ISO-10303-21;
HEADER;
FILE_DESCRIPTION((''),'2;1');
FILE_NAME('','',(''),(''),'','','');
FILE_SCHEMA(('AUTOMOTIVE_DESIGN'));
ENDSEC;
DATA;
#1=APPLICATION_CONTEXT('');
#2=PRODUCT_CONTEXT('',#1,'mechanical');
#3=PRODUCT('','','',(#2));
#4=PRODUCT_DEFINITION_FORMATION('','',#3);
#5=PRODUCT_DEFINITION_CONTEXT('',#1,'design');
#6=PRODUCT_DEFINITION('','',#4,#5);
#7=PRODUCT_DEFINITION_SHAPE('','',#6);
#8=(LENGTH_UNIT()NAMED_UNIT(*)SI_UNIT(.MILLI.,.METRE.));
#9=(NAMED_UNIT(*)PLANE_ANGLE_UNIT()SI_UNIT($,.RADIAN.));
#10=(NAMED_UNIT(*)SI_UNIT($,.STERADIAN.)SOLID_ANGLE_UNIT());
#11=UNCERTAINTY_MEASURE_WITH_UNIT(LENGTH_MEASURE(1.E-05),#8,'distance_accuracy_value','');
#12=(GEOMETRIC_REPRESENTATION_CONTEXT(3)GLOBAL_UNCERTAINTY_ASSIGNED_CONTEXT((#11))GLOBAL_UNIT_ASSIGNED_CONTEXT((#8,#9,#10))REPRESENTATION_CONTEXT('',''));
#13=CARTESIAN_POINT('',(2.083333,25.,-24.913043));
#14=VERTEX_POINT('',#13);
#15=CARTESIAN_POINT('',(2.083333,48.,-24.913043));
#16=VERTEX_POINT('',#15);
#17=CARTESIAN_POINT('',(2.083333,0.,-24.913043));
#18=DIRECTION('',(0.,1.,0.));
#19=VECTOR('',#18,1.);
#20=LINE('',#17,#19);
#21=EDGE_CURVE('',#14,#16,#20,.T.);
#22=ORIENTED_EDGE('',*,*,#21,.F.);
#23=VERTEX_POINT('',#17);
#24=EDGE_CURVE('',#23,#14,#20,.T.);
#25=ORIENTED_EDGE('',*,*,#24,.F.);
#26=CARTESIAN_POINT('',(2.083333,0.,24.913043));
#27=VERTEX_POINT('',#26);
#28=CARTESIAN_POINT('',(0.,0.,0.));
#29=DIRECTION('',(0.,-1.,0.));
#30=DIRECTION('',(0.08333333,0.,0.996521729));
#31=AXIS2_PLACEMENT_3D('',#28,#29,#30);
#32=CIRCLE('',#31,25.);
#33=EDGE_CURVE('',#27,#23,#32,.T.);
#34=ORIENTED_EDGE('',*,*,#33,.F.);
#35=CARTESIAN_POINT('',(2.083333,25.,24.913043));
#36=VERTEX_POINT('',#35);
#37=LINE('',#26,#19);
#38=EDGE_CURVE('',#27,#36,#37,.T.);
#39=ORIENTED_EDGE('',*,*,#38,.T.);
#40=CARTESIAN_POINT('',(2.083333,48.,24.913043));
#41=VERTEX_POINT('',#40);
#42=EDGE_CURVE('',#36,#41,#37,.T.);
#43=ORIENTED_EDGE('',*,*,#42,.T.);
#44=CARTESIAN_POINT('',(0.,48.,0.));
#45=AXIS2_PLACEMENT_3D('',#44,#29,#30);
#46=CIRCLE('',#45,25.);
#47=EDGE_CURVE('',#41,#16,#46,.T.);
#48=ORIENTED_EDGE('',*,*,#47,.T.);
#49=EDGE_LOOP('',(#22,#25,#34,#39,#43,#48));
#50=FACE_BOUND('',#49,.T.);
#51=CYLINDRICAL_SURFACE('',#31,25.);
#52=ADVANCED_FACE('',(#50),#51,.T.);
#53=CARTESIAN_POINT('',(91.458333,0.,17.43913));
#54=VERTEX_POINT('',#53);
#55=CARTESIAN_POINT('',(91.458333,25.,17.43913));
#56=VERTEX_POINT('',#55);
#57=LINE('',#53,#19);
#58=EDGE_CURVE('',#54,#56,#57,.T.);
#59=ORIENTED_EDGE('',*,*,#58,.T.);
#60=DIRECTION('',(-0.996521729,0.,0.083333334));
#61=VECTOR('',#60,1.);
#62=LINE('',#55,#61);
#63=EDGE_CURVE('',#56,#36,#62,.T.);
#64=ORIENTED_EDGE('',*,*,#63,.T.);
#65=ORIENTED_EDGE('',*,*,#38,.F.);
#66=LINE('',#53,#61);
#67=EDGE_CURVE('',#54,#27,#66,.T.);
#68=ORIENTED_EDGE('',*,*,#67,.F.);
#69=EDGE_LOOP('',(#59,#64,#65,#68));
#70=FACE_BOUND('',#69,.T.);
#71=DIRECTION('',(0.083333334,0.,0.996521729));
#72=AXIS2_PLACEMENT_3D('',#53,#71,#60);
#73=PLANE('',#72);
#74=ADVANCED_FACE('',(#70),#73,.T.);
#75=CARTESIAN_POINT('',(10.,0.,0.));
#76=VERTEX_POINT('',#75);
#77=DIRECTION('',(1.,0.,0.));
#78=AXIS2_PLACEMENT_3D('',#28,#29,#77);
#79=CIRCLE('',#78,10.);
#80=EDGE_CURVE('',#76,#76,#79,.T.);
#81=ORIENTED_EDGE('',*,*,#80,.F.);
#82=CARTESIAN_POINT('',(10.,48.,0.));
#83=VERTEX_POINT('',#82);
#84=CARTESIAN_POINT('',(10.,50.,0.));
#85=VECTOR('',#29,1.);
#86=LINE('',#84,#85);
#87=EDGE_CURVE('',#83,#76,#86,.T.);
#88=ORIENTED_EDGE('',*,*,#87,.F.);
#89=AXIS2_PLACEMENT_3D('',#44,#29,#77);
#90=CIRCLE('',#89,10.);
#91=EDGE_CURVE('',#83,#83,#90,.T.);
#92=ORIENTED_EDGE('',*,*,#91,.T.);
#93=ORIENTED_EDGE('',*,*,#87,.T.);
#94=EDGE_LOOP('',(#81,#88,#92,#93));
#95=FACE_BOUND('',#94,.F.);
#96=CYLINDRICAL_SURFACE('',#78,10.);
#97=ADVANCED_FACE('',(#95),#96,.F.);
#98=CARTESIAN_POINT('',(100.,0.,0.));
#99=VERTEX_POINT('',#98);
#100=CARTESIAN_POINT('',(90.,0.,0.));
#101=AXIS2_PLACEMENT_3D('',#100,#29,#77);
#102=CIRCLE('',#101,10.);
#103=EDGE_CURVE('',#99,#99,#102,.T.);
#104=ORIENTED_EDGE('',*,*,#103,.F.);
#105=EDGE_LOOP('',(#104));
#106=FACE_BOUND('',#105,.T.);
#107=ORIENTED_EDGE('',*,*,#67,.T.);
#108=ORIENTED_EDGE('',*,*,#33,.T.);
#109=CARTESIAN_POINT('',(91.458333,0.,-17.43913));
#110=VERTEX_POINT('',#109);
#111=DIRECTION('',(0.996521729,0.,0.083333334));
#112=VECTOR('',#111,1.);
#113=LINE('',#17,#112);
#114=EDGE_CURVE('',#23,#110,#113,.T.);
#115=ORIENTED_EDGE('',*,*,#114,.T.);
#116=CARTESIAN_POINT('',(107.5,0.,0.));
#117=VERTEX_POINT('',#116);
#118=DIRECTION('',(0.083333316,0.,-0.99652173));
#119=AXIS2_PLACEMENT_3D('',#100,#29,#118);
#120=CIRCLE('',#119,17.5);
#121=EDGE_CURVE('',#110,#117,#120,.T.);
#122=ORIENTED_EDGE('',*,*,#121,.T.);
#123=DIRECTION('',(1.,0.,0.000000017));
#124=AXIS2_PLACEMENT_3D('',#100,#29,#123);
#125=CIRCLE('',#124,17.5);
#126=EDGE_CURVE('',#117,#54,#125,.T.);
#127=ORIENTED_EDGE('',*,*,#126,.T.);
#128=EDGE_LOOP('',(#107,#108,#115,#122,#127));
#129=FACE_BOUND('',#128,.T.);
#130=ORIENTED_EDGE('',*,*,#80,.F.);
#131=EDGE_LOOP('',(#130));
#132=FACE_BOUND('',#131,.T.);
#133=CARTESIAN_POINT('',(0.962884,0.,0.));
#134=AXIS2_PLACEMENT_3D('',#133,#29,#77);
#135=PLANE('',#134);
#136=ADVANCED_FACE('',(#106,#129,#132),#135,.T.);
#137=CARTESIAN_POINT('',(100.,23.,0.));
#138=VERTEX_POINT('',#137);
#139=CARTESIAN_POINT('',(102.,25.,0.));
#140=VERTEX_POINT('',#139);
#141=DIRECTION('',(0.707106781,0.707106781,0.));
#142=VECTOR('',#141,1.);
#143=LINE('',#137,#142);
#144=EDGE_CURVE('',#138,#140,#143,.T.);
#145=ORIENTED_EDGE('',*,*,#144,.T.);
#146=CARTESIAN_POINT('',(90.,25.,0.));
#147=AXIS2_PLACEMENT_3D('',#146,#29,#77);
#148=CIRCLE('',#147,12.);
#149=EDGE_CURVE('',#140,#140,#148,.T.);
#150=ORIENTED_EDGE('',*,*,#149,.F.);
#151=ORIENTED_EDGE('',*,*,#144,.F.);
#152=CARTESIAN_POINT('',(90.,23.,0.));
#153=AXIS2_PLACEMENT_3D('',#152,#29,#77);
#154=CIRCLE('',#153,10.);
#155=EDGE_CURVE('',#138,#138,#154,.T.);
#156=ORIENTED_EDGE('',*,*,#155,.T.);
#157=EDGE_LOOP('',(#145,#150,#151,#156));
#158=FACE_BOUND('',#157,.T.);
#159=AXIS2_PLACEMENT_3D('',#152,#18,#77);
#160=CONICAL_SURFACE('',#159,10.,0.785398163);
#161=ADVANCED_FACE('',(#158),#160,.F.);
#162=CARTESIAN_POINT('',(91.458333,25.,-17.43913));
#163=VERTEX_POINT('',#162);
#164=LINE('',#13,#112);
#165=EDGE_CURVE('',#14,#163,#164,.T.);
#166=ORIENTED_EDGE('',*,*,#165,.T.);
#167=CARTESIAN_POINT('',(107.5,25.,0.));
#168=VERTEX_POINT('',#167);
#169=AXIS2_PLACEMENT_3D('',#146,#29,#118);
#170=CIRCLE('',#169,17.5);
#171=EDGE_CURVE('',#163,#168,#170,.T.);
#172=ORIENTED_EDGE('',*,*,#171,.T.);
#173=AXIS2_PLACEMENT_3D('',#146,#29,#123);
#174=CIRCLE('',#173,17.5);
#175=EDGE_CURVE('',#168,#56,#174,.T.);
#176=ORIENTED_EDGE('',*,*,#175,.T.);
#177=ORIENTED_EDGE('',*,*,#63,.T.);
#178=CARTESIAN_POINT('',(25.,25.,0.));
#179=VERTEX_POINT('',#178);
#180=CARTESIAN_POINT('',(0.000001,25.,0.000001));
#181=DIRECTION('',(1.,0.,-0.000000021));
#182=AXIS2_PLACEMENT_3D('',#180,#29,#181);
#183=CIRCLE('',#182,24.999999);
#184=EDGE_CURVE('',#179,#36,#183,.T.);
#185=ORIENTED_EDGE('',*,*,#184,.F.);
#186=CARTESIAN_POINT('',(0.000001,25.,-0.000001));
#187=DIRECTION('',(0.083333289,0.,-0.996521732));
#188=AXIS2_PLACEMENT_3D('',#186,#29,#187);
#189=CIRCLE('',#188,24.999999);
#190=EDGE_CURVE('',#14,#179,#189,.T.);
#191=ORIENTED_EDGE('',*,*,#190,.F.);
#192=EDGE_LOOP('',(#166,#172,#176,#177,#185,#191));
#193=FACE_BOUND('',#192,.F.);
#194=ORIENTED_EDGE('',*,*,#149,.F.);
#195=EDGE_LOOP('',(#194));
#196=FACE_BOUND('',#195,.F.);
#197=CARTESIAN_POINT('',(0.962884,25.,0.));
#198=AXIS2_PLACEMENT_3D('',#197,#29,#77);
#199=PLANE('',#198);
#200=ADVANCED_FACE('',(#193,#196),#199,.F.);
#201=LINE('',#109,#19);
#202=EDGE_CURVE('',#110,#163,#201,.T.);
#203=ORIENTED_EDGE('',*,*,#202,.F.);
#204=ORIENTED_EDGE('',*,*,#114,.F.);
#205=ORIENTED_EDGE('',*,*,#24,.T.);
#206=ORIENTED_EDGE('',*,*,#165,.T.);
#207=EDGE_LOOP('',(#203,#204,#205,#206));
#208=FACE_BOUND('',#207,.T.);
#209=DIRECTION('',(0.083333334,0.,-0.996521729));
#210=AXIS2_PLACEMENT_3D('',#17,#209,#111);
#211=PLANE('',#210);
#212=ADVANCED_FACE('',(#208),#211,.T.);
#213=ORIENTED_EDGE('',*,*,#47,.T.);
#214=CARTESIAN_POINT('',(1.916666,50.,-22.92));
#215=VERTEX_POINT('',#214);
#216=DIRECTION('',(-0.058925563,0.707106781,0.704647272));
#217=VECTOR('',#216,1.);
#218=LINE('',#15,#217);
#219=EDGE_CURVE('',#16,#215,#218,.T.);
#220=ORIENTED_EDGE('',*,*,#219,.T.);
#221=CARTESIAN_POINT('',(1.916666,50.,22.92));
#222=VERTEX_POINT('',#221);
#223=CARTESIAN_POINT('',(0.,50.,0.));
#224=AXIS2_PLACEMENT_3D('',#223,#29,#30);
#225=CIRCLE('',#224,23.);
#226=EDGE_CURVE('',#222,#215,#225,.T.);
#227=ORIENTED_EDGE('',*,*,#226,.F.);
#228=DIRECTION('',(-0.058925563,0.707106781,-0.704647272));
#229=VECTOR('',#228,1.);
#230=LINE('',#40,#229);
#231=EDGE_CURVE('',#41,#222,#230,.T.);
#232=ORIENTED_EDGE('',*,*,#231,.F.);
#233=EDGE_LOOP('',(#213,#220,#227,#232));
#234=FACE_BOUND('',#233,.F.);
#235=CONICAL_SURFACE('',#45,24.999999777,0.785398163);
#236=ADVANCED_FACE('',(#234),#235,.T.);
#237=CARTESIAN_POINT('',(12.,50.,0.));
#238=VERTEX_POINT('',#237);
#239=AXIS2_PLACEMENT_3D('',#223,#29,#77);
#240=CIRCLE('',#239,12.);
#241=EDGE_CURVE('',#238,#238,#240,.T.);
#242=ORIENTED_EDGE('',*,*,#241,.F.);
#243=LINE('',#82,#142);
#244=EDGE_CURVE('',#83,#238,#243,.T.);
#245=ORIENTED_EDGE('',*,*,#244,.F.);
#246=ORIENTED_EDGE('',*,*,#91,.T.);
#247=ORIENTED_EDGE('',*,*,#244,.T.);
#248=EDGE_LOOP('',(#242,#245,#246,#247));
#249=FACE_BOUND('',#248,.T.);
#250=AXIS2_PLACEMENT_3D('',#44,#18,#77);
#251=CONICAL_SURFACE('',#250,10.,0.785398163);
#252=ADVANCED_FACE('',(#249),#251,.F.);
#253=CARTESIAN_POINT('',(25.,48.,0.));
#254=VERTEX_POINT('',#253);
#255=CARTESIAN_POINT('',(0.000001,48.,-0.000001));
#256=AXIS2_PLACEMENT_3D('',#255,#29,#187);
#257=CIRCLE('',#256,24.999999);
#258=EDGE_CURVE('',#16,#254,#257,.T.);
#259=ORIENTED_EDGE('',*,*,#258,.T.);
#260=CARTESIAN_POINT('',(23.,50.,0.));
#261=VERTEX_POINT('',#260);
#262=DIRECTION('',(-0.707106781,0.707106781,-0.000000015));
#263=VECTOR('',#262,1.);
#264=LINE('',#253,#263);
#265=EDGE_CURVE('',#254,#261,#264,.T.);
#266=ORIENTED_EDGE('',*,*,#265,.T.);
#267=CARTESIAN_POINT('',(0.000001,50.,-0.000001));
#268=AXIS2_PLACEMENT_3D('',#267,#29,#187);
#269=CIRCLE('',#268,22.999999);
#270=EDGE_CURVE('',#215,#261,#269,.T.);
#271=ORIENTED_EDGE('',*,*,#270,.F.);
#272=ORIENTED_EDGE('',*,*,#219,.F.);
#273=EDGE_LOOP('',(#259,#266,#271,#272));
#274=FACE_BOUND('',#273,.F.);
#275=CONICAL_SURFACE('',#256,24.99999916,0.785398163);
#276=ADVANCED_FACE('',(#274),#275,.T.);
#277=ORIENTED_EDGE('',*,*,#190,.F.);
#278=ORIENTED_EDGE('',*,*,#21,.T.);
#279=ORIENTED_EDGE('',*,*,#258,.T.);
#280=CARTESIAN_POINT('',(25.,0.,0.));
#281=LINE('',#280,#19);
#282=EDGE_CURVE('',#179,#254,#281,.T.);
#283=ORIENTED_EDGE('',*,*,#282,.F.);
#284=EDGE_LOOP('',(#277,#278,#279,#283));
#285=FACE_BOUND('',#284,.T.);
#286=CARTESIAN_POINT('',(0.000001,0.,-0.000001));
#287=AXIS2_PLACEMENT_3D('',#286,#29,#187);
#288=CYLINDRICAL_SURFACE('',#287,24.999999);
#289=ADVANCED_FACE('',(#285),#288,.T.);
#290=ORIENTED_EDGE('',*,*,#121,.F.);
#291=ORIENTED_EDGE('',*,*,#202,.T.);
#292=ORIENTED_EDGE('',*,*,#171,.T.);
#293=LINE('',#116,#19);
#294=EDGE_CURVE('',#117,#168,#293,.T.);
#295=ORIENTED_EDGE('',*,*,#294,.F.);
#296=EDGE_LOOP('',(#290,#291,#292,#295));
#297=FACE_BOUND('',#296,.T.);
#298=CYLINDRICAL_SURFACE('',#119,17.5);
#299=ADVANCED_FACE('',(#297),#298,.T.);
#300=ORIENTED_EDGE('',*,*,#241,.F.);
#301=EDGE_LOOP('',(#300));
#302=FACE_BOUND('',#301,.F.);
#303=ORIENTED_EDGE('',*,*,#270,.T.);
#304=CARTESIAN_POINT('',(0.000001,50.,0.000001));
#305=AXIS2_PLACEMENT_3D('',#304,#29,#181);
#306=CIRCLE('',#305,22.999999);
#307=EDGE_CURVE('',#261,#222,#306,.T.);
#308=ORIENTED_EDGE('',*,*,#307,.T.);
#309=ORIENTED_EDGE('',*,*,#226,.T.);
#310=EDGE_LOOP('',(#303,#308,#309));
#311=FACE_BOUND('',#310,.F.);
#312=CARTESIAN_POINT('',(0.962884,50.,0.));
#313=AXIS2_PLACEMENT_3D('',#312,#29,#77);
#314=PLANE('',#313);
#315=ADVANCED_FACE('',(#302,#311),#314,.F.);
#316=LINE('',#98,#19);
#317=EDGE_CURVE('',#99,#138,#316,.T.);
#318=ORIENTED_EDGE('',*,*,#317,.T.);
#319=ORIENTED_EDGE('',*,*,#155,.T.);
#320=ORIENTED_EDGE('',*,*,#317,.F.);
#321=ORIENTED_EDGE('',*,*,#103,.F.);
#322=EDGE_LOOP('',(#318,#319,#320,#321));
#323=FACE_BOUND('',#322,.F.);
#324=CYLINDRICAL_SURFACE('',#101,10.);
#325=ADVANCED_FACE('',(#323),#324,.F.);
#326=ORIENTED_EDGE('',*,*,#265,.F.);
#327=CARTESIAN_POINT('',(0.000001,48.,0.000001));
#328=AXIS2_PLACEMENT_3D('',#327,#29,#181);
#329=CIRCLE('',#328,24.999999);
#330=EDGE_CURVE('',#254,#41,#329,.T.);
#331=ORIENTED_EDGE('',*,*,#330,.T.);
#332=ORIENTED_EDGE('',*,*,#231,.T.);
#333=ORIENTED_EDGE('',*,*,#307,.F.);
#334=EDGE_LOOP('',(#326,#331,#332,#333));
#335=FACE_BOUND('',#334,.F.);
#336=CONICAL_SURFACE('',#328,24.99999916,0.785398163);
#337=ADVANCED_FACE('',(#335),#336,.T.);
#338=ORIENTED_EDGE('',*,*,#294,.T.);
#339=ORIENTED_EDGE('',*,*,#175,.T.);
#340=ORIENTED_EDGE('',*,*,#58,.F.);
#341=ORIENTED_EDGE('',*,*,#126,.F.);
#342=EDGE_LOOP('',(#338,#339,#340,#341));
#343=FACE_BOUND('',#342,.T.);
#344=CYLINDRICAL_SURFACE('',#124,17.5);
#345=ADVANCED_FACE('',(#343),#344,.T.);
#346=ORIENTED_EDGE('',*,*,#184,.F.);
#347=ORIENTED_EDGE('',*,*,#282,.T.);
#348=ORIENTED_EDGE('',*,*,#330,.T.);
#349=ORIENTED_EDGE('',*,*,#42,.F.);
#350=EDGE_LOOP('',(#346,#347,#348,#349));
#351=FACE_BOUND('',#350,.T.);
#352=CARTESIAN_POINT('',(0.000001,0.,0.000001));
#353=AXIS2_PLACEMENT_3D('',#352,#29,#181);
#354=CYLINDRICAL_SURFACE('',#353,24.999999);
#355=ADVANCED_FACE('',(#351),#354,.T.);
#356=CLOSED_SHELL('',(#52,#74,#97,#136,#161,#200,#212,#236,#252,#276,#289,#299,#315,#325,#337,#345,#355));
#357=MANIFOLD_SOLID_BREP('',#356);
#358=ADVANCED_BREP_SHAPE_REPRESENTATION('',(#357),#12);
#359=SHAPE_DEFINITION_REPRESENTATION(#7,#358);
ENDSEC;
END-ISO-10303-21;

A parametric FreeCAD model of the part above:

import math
import FreeCAD as App
import Part
import Sketcher
Q = App.Units.Quantity


def edges_at(feature, points):
    """Names of the edges that pass closest to the given points."""
    edges = feature.Shape.Edges
    near = lambda p: min(range(len(edges)), key=lambda i: edges[i].distToShape(Part.Vertex(*p))[0])
    return sorted({f"Edge{near(p) + 1}" for p in points})

doc = App.newDocument("Part")
params = doc.addObject("Spreadsheet::Sheet", "Params")
for row, (alias, value) in enumerate([
    ("sketch1_diameter", "20 mm"),
    ("sketch1_radius", "25 mm"),
    ("sketch1_radius2", "17.5 mm"),
    ("pad1_length", "25 mm"),
    ("sketch2_diameter", "20 mm"),
    ("sketch2_radius", "24.999999 mm"),
    ("pad2_length", "50 mm"),
    ("chamfer_size", "2 mm"),
], start=1):
    params.set(f"A{row}", alias)
    params.set(f"B{row}", "=" + value)
    params.setAlias(f"B{row}", alias)

body = doc.addObject("PartDesign::Body", "Body")

sketch1 = body.newObject("Sketcher::SketchObject", "Sketch")
sketch1.AttachmentSupport = (doc.getObject("XZ_Plane"), [""])
sketch1.MapMode = "FlatFace"
sketch1.addGeometry([
    Part.ArcOfCircle(Part.Circle(App.Vector(0, 0, 0), App.Vector(0, 0, 1), 25), math.radians(85), math.radians(275)),
    Part.LineSegment(App.Vector(2, -25, 0), App.Vector(91, -17, 0)),
    Part.ArcOfCircle(Part.Circle(App.Vector(90, 0, 0), App.Vector(0, 0, 1), 18), math.radians(-85), math.radians(0)),
    Part.ArcOfCircle(Part.Circle(App.Vector(90, 0, 0), App.Vector(0, 0, 1), 18), math.radians(0), math.radians(85)),
    Part.LineSegment(App.Vector(91, 17, 0), App.Vector(2, 25, 0)),
    Part.Circle(App.Vector(0, 0, 0), App.Vector(0, 0, 1), 10),
    Part.Circle(App.Vector(90, 0, 0), App.Vector(0, 0, 1), 10),
], False)
sketch1.addConstraint([
    Sketcher.Constraint("Tangent", 0, 2, 1, 1),
    Sketcher.Constraint("Tangent", 1, 2, 2, 1),
    Sketcher.Constraint("Tangent", 2, 2, 3, 1),
    Sketcher.Constraint("Tangent", 3, 2, 4, 1),
    Sketcher.Constraint("Tangent", 4, 2, 0, 1),
    Sketcher.Constraint("Coincident", 0, 3, -1, 1),
    Sketcher.Constraint("Coincident", 5, 3, -1, 1),
    Sketcher.Constraint("Coincident", 6, 3, 2, 3),
    Sketcher.Constraint("Equal", 2, 3),
    Sketcher.Constraint("Equal", 5, 6),
    Sketcher.Constraint("PointOnObject", 2, 3, -1),
    Sketcher.Constraint("PointOnObject", 2, 2, -1),
    Sketcher.Constraint("Diameter", 5, Q("20 mm")),
    Sketcher.Constraint("Radius", 0, Q("25 mm")),
    Sketcher.Constraint("Radius", 2, Q("17.5 mm")),
    Sketcher.Constraint("DistanceX", -1, 1, 2, 3, Q("90 mm")),
])
sketch1.setExpression("Constraints[12]", "Params.sketch1_diameter")
sketch1.setExpression("Constraints[13]", "Params.sketch1_radius")
sketch1.setExpression("Constraints[14]", "Params.sketch1_radius2")
pad1 = body.newObject("PartDesign::Pad", "Pad")
pad1.Profile = sketch1
pad1.setExpression("Length", "Params.pad1_length")
pad1.Reversed = True

sketch2 = body.newObject("Sketcher::SketchObject", "Sketch001")
sketch2.AttachmentSupport = (doc.getObject("XZ_Plane"), [""])
sketch2.MapMode = "FlatFace"
sketch2.addGeometry([
    Part.ArcOfCircle(Part.Circle(App.Vector(0, 0, 0), App.Vector(0, 0, 1), 25), math.radians(-85), math.radians(0)),
    Part.ArcOfCircle(Part.Circle(App.Vector(0, 0, 0), App.Vector(0, 0, 1), 25), math.radians(0), math.radians(85)),
    Part.ArcOfCircle(Part.Circle(App.Vector(0, 0, 0), App.Vector(0, 0, 1), 25), math.radians(85), math.radians(275)),
    Part.Circle(App.Vector(0, 0, 0), App.Vector(0, 0, 1), 10),
], False)
sketch2.addConstraint([
    Sketcher.Constraint("Tangent", 0, 2, 1, 1),
    Sketcher.Constraint("Tangent", 1, 2, 2, 1),
    Sketcher.Constraint("Tangent", 2, 2, 0, 1),
    Sketcher.Constraint("Coincident", 0, 3, -1, 1),
    Sketcher.Constraint("Coincident", 3, 3, -1, 1),
    Sketcher.Constraint("PointOnObject", 0, 2, -1),
    Sketcher.Constraint("Vertical", 1, 2, 2, 2),
    Sketcher.Constraint("Diameter", 3, Q("20 mm")),
    Sketcher.Constraint("Radius", 0, Q("24.999999 mm")),
    Sketcher.Constraint("DistanceX", -1, 1, 1, 2, Q("2.083333 mm")),
])
sketch2.setExpression("Constraints[7]", "Params.sketch2_diameter")
sketch2.setExpression("Constraints[8]", "Params.sketch2_radius")
pad2 = body.newObject("PartDesign::Pad", "Pad001")
pad2.Profile = sketch2
pad2.setExpression("Length", "Params.pad2_length")
pad2.Reversed = True
doc.recompute()

chamfer = body.newObject("PartDesign::Chamfer", "Chamfer")
chamfer.Base = (pad2, edges_at(pad2, [(-10, 50, 0), (80, 25, 0), (-25, 50, 0)]))
chamfer.setExpression("Size", "Params.chamfer_size")

doc.recompute()
